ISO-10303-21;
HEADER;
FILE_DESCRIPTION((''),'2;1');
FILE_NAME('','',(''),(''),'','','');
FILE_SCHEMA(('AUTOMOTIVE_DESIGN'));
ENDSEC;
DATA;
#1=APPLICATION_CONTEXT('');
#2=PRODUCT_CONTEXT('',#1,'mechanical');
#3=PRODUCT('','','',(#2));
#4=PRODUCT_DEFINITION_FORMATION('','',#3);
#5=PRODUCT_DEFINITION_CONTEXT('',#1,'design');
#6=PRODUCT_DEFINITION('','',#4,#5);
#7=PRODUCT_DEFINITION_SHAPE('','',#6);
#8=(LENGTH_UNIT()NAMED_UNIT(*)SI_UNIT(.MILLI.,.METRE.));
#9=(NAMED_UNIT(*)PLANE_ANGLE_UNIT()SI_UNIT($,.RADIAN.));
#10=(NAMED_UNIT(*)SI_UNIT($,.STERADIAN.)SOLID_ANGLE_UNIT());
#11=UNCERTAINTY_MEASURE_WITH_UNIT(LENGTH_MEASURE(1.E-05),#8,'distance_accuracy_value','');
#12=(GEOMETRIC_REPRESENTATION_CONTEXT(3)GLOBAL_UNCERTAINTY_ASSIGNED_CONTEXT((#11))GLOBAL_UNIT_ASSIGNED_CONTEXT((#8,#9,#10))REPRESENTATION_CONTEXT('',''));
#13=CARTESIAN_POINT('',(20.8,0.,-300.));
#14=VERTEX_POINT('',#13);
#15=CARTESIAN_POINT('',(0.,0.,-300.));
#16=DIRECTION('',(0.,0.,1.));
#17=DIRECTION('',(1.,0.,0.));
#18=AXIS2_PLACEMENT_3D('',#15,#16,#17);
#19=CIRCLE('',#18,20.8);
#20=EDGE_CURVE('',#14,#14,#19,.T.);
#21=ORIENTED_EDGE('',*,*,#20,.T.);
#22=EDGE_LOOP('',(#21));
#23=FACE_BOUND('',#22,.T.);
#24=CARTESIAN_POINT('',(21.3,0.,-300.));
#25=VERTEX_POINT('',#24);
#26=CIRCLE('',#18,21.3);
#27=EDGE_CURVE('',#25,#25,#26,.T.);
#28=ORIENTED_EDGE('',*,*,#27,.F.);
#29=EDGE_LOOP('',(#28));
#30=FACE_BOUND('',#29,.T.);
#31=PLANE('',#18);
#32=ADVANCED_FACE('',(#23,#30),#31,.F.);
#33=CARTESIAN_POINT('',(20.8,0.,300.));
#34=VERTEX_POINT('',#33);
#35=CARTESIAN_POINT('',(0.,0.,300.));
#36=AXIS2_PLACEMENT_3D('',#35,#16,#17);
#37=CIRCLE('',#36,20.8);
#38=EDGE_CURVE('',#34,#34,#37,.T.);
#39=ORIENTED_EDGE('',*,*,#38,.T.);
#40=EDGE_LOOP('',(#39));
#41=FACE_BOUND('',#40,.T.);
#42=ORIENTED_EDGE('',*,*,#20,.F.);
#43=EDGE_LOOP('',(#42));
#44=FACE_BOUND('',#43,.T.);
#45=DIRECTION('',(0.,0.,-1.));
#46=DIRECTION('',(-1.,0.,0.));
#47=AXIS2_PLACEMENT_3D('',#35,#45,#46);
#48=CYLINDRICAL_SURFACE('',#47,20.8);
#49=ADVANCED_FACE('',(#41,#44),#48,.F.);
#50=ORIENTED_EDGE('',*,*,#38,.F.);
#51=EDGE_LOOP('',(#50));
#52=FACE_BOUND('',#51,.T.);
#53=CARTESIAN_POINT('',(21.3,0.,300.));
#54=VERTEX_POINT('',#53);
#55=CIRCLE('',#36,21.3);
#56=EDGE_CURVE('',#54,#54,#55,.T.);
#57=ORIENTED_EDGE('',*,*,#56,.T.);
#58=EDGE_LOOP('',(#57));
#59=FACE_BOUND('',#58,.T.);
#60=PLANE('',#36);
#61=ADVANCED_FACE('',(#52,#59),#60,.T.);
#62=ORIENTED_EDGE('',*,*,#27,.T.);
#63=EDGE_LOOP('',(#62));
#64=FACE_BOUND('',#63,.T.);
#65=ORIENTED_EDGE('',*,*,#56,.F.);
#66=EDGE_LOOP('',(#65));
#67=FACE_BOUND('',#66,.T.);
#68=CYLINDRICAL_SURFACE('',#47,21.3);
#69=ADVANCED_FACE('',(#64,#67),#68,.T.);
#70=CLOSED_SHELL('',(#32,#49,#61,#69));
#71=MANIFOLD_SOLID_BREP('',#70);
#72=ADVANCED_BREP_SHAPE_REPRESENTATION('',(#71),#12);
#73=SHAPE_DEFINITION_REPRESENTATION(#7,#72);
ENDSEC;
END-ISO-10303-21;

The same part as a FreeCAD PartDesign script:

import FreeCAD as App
import Part
import Sketcher
from FreeCAD import Vector

doc = App.newDocument("Part")
body = doc.addObject("PartDesign::Body", "Body")

sketch1 = body.newObject("Sketcher::SketchObject", "Sketch")
sketch1.AttachmentSupport = (doc.getObject("XY_Plane"), [""])
sketch1.MapMode = "FlatFace"
sketch1.addGeometry([
    Part.Circle(Vector(0, 0, 0), Vector(0, 0, 1), 21),
    Part.Circle(Vector(0, 0, 0), Vector(0, 0, 1), 21),
], False)
sketch1.addConstraint([
    Sketcher.Constraint("Coincident", 0, 3, -1, 1),
    Sketcher.Constraint("Coincident", 1, 3, -1, 1),
    Sketcher.Constraint("Diameter", 0, 42.6),
    Sketcher.Constraint("Diameter", 1, 41.6),
])
pad1 = body.newObject("PartDesign::Pad", "Pad")
pad1.Profile = sketch1
pad1.Length = 600
pad1.Midplane = True

doc.recompute()
